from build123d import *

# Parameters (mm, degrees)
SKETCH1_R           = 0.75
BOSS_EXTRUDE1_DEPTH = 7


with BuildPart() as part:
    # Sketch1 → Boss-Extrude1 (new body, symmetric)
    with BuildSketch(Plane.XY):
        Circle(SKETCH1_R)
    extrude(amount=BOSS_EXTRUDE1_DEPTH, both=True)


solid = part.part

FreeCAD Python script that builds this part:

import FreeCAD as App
import Part
import Sketcher

doc = App.newDocument("Part")
body = doc.addObject("PartDesign::Body", "Body")

# Sketch on XY plane
sketch1 = body.newObject("Sketcher::SketchObject", "Sketch")
sketch1.AttachmentSupport = (doc.getObject("XY_Plane"), [""])
sketch1.MapMode = "FlatFace"
sketch1.addGeometry(Part.Circle(App.Vector(0, 0, 0), App.Vector(0, 0, 1), 0.8), False)
sketch1.addConstraint([
    Sketcher.Constraint("Coincident", 0, 3, -1, 1),
    Sketcher.Constraint("Diameter", 0, 1.5),
])
pad1 = body.newObject("PartDesign::Pad", "Pad")
pad1.Profile = sketch1
pad1.Length = 14
pad1.Midplane = True

doc.recompute()
